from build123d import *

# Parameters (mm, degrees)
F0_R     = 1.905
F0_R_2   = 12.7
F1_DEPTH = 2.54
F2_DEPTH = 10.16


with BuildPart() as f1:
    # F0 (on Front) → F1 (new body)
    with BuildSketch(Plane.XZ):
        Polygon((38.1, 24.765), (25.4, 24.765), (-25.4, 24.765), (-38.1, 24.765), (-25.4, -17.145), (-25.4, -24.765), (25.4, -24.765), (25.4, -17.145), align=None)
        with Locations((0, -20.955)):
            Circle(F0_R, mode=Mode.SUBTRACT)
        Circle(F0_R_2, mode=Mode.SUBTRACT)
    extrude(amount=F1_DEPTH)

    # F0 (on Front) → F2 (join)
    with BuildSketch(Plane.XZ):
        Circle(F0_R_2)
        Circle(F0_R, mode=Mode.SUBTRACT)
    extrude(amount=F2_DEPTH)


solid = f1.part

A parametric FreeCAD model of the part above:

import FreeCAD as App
import Part
import Sketcher
Q = App.Units.Quantity


def add_polygon(sketch, points):
    """Adds a closed chain of lines whose ends are joined by coincident constraints."""
    first, n = sketch.GeometryCount, len(points)
    for a, b in zip(points, points[1:] + points[:1]):
        sketch.addGeometry(Part.LineSegment(App.Vector(*a, 0), App.Vector(*b, 0)), False)
    for i in range(n):
        sketch.addConstraint(Sketcher.Constraint("Coincident", first + i, 2, first + (i + 1) % n, 1))

doc = App.newDocument("Part")
body = doc.addObject("PartDesign::Body", "Body")

sketch1 = body.newObject("Sketcher::SketchObject", "Sketch")
sketch1.AttachmentSupport = (doc.getObject("XZ_Plane"), [""])
sketch1.MapMode = "FlatFace"
add_polygon(sketch1, [(38.1, 24.8), (-38.1, 24.8), (-25.4, -17.1), (-25.4, -24.8), (25.4, -24.8), (25.4, -17.1)])
sketch1.addGeometry(Part.Circle(App.Vector(0, -21, 0), App.Vector(0, 0, 1), 1.9), False)
sketch1.addGeometry(Part.Circle(App.Vector(0, 0, 0), App.Vector(0, 0, 1), 12.7), False)
sketch1.addConstraint(Sketcher.Constraint("Horizontal", 0))
sketch1.addConstraint(Sketcher.Constraint("Vertical", 2))
sketch1.addConstraint(Sketcher.Constraint("Horizontal", 3))
sketch1.addConstraint(Sketcher.Constraint("Vertical", 4))
sketch1.addConstraint(Sketcher.Constraint("Coincident", 7, 3, -1, 1))
sketch1.addConstraint(Sketcher.Constraint("Symmetric", 1, 2, 4, 2, -2))
sketch1.addConstraint(Sketcher.Constraint("PointOnObject", 6, 3, -2))
sketch1.addConstraint(Sketcher.Constraint("Equal", 1, 5))
sketch1.addConstraint(Sketcher.Constraint("Diameter", 7, Q("1 in")))
sketch1.addConstraint(Sketcher.Constraint("Diameter", 6, Q("0.15 in")))
sketch1.addConstraint(Sketcher.Constraint("DistanceX", 0, 2, 0, 1, Q("3 in")))
sketch1.addConstraint(Sketcher.Constraint("DistanceX", 3, 1, 3, 2, Q("2 in")))
sketch1.addConstraint(Sketcher.Constraint("DistanceY", 2, 2, 2, 1, Q("0.3 in")))
sketch1.addConstraint(Sketcher.Constraint("DistanceY", 6, 3, 0, 2, Q("1.8 in")))
sketch1.addConstraint(Sketcher.Constraint("DistanceY", 6, 3, 1, 2, Q("0.15 in")))
sketch1.addConstraint(Sketcher.Constraint("DistanceY", 6, 3, -1, 1, Q("0.825 in")))
pad1 = body.newObject("PartDesign::Pad", "Pad")
pad1.Profile = sketch1
pad1.Length = Q("0.1 in")

sketch2 = body.newObject("Sketcher::SketchObject", "Sketch001")
sketch2.AttachmentSupport = (doc.getObject("XZ_Plane"), [""])
sketch2.MapMode = "FlatFace"
sketch2.addGeometry(Part.Circle(App.Vector(0, 0, 0), App.Vector(0, 0, 1), 12.7), False)
sketch2.addGeometry(Part.Circle(App.Vector(0, 0, 0), App.Vector(0, 0, 1), 1.9), False)
sketch2.addConstraint(Sketcher.Constraint("Coincident", 0, 3, -1, 1))
sketch2.addConstraint(Sketcher.Constraint("Coincident", 1, 3, -1, 1))
sketch2.addConstraint(Sketcher.Constraint("Diameter", 0, Q("1 in")))
sketch2.addConstraint(Sketcher.Constraint("Diameter", 1, Q("0.15 in")))
pad2 = body.newObject("PartDesign::Pad", "Pad001")
pad2.Profile = sketch2
pad2.Length = Q("0.4 in")

doc.recompute()
